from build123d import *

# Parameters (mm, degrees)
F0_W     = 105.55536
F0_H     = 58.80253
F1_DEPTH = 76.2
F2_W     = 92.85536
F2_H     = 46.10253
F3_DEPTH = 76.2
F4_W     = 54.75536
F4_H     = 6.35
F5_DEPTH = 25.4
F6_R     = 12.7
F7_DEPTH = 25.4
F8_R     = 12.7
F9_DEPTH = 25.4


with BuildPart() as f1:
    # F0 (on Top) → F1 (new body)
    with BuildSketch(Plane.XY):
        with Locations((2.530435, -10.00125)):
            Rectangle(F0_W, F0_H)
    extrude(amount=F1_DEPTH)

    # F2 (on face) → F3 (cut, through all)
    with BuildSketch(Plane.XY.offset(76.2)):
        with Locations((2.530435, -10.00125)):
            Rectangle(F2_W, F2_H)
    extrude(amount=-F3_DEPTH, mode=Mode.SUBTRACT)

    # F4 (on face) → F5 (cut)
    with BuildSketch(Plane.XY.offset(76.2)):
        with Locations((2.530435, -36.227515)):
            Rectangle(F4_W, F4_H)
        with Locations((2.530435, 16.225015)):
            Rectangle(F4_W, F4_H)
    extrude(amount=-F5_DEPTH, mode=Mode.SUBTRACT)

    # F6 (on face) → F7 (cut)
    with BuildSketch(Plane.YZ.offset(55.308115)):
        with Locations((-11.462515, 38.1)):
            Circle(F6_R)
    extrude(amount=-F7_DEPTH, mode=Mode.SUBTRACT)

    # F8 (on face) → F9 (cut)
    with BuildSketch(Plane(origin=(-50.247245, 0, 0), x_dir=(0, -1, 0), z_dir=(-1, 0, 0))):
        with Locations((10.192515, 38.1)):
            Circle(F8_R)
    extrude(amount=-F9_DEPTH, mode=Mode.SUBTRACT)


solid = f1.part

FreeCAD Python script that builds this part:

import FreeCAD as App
import Part
import Sketcher
Q = App.Units.Quantity


def add_polygon(sketch, points):
    """Adds a closed chain of lines whose ends are joined by coincident constraints."""
    first, n = sketch.GeometryCount, len(points)
    for a, b in zip(points, points[1:] + points[:1]):
        sketch.addGeometry(Part.LineSegment(App.Vector(*a, 0), App.Vector(*b, 0)), False)
    for i in range(n):
        sketch.addConstraint(Sketcher.Constraint("Coincident", first + i, 2, first + (i + 1) % n, 1))

doc = App.newDocument("Part")
params = doc.addObject("Spreadsheet::Sheet", "Params")
for row, (alias, value) in enumerate([
    ("pad1_length", "3 in"),
    ("sketch3_height", "0.25 in"),
    ("pocket2_length", "1 in"),
    ("sketch4_diameter", "1 in"),
    ("pocket3_length", "1 in"),
    ("sketch5_diameter", "1 in"),
    ("pocket4_length", "1 in"),
], start=1):
    params.set(f"A{row}", alias)
    params.set(f"B{row}", "=" + value)
    params.setAlias(f"B{row}", alias)

body = doc.addObject("PartDesign::Body", "Body")

sketch1 = doc.addObject("Sketcher::SketchObject", "Sketch")
body.addObject(sketch1)
sketch1.AttachmentSupport = (doc.XY_Plane, [""])
sketch1.MapMode = "FlatFace"
add_polygon(sketch1, [(-50.247245, 19.400015), (-50.247245, -39.402515), (55.308115, -39.402515), (55.308115, 19.400015)])
sketch1.addConstraint([
    Sketcher.Constraint("Vertical", 0),
    Sketcher.Constraint("Horizontal", 1),
    Sketcher.Constraint("Vertical", 2),
    Sketcher.Constraint("Horizontal", 3),
    Sketcher.Constraint("DistanceX", 1, 1, 1, 2, 105.55536),
    Sketcher.Constraint("DistanceY", 0, 2, 0, 1, 58.80253),
    Sketcher.Constraint("DistanceX", 0, 2, -1, 1, 50.247245),
    Sketcher.Constraint("DistanceY", 0, 2, -1, 1, 39.402515),
])
pad1 = doc.addObject("PartDesign::Pad", "Pad")
body.addObject(pad1)
pad1.Profile = sketch1
pad1.setExpression("Length", "Params.pad1_length")

sketch2 = doc.addObject("Sketcher::SketchObject", "Sketch001")
body.addObject(sketch2)
sketch2.AttachmentSupport = (doc.XY_Plane, [""])
sketch2.MapMode = "FlatFace"
sketch2.AttachmentOffset = App.Placement(App.Vector(0, 0, 3 * 25.4), App.Rotation())
add_polygon(sketch2, [(-43.897245, 13.050015), (-43.897245, -33.052515), (48.958115, -33.052515), (48.958115, 13.050015)])
sketch2.addConstraint([
    Sketcher.Constraint("Vertical", 0),
    Sketcher.Constraint("Horizontal", 1),
    Sketcher.Constraint("Vertical", 2),
    Sketcher.Constraint("Horizontal", 3),
    Sketcher.Constraint("DistanceX", 1, 1, 1, 2, 92.85536),
    Sketcher.Constraint("DistanceY", 0, 2, 0, 1, 46.10253),
    Sketcher.Constraint("DistanceX", 0, 2, -1, 1, 43.897245),
    Sketcher.Constraint("DistanceY", 0, 2, -1, 1, 33.052515),
])
pocket1 = doc.addObject("PartDesign::Pocket", "Pocket")
body.addObject(pocket1)
pocket1.Profile = sketch2
pocket1.Type = "ThroughAll"

sketch3 = doc.addObject("Sketcher::SketchObject", "Sketch002")
body.addObject(sketch3)
sketch3.AttachmentSupport = (doc.XY_Plane, [""])
sketch3.MapMode = "FlatFace"
sketch3.AttachmentOffset = App.Placement(App.Vector(0, 0, 3 * 25.4), App.Rotation())
add_polygon(sketch3, [(-24.847245, -33.052515), (-24.847245, -39.402515), (29.908115, -39.402515), (29.908115, -33.052515)])
add_polygon(sketch3, [(-24.847245, 19.400015), (-24.847245, 13.050015), (29.908115, 13.050015), (29.908115, 19.400015)])
sketch3.addConstraint([
    Sketcher.Constraint("Vertical", 0),
    Sketcher.Constraint("Horizontal", 1),
    Sketcher.Constraint("Vertical", 2),
    Sketcher.Constraint("Horizontal", 3),
    Sketcher.Constraint("Vertical", 4),
    Sketcher.Constraint("Horizontal", 5),
    Sketcher.Constraint("Vertical", 6),
    Sketcher.Constraint("Horizontal", 7),
    Sketcher.Constraint("Vertical", 3, 2, 4, 2),
    Sketcher.Constraint("Vertical", 2, 2, 5, 2),
    Sketcher.Constraint("Equal", 2, 4),
    Sketcher.Constraint("DistanceY", 0, 2, 0, 1, Q("0.25 in")),
    Sketcher.Constraint("DistanceX", 1, 1, 1, 2, 54.75536),
    Sketcher.Constraint("DistanceY", 3, 2, 4, 2, 46.10253),
    Sketcher.Constraint("DistanceX", 0, 2, -1, 1, 24.847245),
    Sketcher.Constraint("DistanceY", 0, 2, -1, 1, 39.402515),
])
sketch3.setExpression("Constraints[19]", "Params.sketch3_height")
pocket2 = doc.addObject("PartDesign::Pocket", "Pocket001")
body.addObject(pocket2)
pocket2.Profile = sketch3
pocket2.setExpression("Length", "Params.pocket2_length")

sketch4 = doc.addObject("Sketcher::SketchObject", "Sketch003")
body.addObject(sketch4)
sketch4.AttachmentSupport = (doc.YZ_Plane, [""])
sketch4.MapMode = "FlatFace"
sketch4.AttachmentOffset = App.Placement(App.Vector(0, 0, 55.308115), App.Rotation())
sketch4.addGeometry(Part.Circle(App.Vector(-11.462515, 38.1, 0), App.Vector(0, 0, 1), 12.7), False)
sketch4.addConstraint([
    Sketcher.Constraint("Diameter", 0, Q("1 in")),
    Sketcher.Constraint("DistanceY", -1, 1, 0, 3, Q("1.5 in")),
    Sketcher.Constraint("DistanceX", 0, 3, -1, 1, 11.462515),
])
sketch4.setExpression("Constraints[0]", "Params.sketch4_diameter")
pocket3 = doc.addObject("PartDesign::Pocket", "Pocket002")
body.addObject(pocket3)
pocket3.Profile = sketch4
pocket3.setExpression("Length", "Params.pocket3_length")

sketch5 = doc.addObject("Sketcher::SketchObject", "Sketch004")
body.addObject(sketch5)
sketch5.AttachmentSupport = (doc.YZ_Plane, [""])
sketch5.MapMode = "FlatFace"
sketch5.AttachmentOffset = App.Placement(App.Vector(0, 0, -50.247245), App.Rotation())
sketch5.addGeometry(Part.Circle(App.Vector(-10.192515, 38.1, 0), App.Vector(0, 0, 1), 12.7), False)
sketch5.addConstraint([
    Sketcher.Constraint("Diameter", 0, Q("1 in")),
    Sketcher.Constraint("DistanceY", -1, 1, 0, 3, Q("1.5 in")),
    Sketcher.Constraint("DistanceX", 0, 3, -1, 1, 10.192515),
])
sketch5.setExpression("Constraints[0]", "Params.sketch5_diameter")
pocket4 = doc.addObject("PartDesign::Pocket", "Pocket003")
body.addObject(pocket4)
pocket4.Profile = sketch5
pocket4.setExpression("Length", "Params.pocket4_length")
pocket4.Reversed = True

doc.recompute()
